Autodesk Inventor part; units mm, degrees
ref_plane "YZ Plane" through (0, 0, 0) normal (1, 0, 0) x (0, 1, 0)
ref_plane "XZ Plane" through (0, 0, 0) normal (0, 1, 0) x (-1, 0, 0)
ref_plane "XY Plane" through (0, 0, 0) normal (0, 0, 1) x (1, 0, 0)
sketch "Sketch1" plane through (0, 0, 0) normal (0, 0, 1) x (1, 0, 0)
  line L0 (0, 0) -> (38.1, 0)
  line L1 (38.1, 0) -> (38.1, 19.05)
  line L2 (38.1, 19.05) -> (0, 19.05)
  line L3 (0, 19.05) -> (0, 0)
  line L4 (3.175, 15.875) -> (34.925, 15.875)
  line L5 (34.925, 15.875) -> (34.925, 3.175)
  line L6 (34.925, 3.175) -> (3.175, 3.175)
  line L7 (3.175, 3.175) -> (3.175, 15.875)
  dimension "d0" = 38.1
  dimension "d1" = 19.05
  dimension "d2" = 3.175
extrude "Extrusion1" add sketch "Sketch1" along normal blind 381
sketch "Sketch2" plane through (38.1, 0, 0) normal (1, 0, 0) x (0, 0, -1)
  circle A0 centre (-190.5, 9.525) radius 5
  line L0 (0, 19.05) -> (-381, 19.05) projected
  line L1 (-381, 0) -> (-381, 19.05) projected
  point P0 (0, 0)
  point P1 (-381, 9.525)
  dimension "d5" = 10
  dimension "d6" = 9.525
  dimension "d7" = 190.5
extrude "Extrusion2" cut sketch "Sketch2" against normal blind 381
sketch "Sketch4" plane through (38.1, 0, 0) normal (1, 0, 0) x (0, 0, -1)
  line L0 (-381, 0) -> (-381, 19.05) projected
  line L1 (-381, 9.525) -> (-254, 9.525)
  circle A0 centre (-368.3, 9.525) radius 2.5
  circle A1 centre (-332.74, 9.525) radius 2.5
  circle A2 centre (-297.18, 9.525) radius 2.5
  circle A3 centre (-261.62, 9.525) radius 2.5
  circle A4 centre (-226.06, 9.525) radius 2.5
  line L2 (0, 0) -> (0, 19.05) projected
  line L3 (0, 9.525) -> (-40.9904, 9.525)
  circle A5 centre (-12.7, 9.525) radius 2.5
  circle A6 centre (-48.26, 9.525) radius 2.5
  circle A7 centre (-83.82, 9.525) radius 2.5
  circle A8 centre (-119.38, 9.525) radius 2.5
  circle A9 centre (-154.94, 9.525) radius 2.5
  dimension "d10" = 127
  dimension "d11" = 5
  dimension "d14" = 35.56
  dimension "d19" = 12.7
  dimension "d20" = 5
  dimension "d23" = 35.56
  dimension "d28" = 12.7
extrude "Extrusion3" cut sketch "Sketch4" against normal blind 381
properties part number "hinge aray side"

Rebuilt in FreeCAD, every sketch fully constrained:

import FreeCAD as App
import Part
import Sketcher
Q = App.Units.Quantity

doc = App.newDocument("Part")
params = doc.addObject("Spreadsheet::Sheet", "Params")
for row, (alias, value) in enumerate([
    ("sketch1_width", "1.5 in"),
    ("sketch1_height", "0.75 in"),
    ("sketch1_height2", "0.5 in"),
    ("pad1_length", "15 in"),
    ("pocket1_length", "15 in"),
    ("pocket2_length", "15 in"),
], start=1):
    params.set(f"A{row}", alias)
    params.set(f"B{row}", "=" + value)
    params.setAlias(f"B{row}", alias)

body = doc.addObject("PartDesign::Body", "Body")

sketch1 = body.newObject("Sketcher::SketchObject", "Sketch")
sketch1.AttachmentSupport = (doc.getObject("XY_Plane"), [""])
sketch1.MapMode = "FlatFace"
sketch1.addGeometry([
    Part.LineSegment(App.Vector(0, 19, 0), App.Vector(0, 0, 0)),
    Part.LineSegment(App.Vector(0, 0, 0), App.Vector(38, 0, 0)),
    Part.LineSegment(App.Vector(38, 0, 0), App.Vector(38, 19, 0)),
    Part.LineSegment(App.Vector(38, 19, 0), App.Vector(0, 19, 0)),
    Part.LineSegment(App.Vector(3, 3, 0), App.Vector(3, 16, 0)),
    Part.LineSegment(App.Vector(3, 16, 0), App.Vector(35, 16, 0)),
    Part.LineSegment(App.Vector(35, 16, 0), App.Vector(35, 3, 0)),
    Part.LineSegment(App.Vector(35, 3, 0), App.Vector(3, 3, 0)),
], False)
sketch1.addConstraint([
    Sketcher.Constraint("Coincident", 0, 2, 1, 1),
    Sketcher.Constraint("Coincident", 1, 2, 2, 1),
    Sketcher.Constraint("Coincident", 2, 2, 3, 1),
    Sketcher.Constraint("Coincident", 3, 2, 0, 1),
    Sketcher.Constraint("Coincident", 4, 2, 5, 1),
    Sketcher.Constraint("Coincident", 5, 2, 6, 1),
    Sketcher.Constraint("Coincident", 6, 2, 7, 1),
    Sketcher.Constraint("Coincident", 7, 2, 4, 1),
    Sketcher.Constraint("Vertical", 0),
    Sketcher.Constraint("Horizontal", 1),
    Sketcher.Constraint("Vertical", 2),
    Sketcher.Constraint("Horizontal", 3),
    Sketcher.Constraint("Vertical", 4),
    Sketcher.Constraint("Horizontal", 5),
    Sketcher.Constraint("Vertical", 6),
    Sketcher.Constraint("Horizontal", 7),
    Sketcher.Constraint("Coincident", 0, 2, -1, 1),
    Sketcher.Constraint("DistanceX", 1, 1, 1, 2, Q("1.5 in")),
    Sketcher.Constraint("DistanceY", 0, 2, 0, 1, Q("0.75 in")),
    Sketcher.Constraint("DistanceY", 4, 1, 4, 2, Q("0.5 in")),
    Sketcher.Constraint("DistanceX", -1, 1, 4, 2, Q("0.125 in")),
    Sketcher.Constraint("DistanceY", -1, 1, 6, 2, Q("0.125 in")),
    Sketcher.Constraint("DistanceX", 5, 2, 2, 2, Q("0.125 in")),
])
sketch1.setExpression("Constraints[17]", "Params.sketch1_width")
sketch1.setExpression("Constraints[18]", "Params.sketch1_height")
sketch1.setExpression("Constraints[19]", "Params.sketch1_height2")
pad1 = body.newObject("PartDesign::Pad", "Pad")
pad1.Profile = sketch1
pad1.setExpression("Length", "Params.pad1_length")

sketch2 = body.newObject("Sketcher::SketchObject", "Sketch001")
sketch2.AttachmentSupport = (doc.getObject("YZ_Plane"), [""])
sketch2.MapMode = "FlatFace"
sketch2.AttachmentOffset = App.Placement(App.Vector(0, 0, 1.5 * 25.4), App.Rotation())
sketch2.addGeometry(Part.Circle(App.Vector(10, 190, 0), App.Vector(0, 0, 1), 5), False)
sketch2.addConstraint([
    Sketcher.Constraint("Diameter", 0, Q("0.3937 in")),
    Sketcher.Constraint("DistanceY", -1, 1, 0, 3, Q("7.5 in")),
    Sketcher.Constraint("DistanceX", -1, 1, 0, 3, Q("0.375 in")),
])
pocket1 = body.newObject("PartDesign::Pocket", "Pocket")
pocket1.Profile = sketch2
pocket1.setExpression("Length", "Params.pocket1_length")

sketch3 = body.newObject("Sketcher::SketchObject", "Sketch002")
sketch3.AttachmentSupport = (doc.getObject("YZ_Plane"), [""])
sketch3.MapMode = "FlatFace"
sketch3.AttachmentOffset = App.Placement(App.Vector(0, 0, 1.5 * 25.4), App.Rotation())
sketch3.addGeometry([
    Part.Circle(App.Vector(9.5, 368.3, 0), App.Vector(0, 0, 1), 2.5),
    Part.Circle(App.Vector(9.5, 261.6, 0), App.Vector(0, 0, 1), 2.5),
    Part.Circle(App.Vector(9.5, 297.2, 0), App.Vector(0, 0, 1), 2.5),
    Part.Circle(App.Vector(9.5, 332.7, 0), App.Vector(0, 0, 1), 2.5),
    Part.Circle(App.Vector(9.5, 226.1, 0), App.Vector(0, 0, 1), 2.5),
    Part.Circle(App.Vector(9.5, 12.7, 0), App.Vector(0, 0, 1), 2.5),
    Part.Circle(App.Vector(9.5, 48.3, 0), App.Vector(0, 0, 1), 2.5),
    Part.Circle(App.Vector(9.5, 83.8, 0), App.Vector(0, 0, 1), 2.5),
    Part.Circle(App.Vector(9.5, 119.4, 0), App.Vector(0, 0, 1), 2.5),
    Part.Circle(App.Vector(9.5, 154.9, 0), App.Vector(0, 0, 1), 2.5),
], False)
sketch3.addConstraint([
    Sketcher.Constraint("Equal", 0, 1),
    Sketcher.Constraint("Equal", 1, 2),
    Sketcher.Constraint("Equal", 2, 3),
    Sketcher.Constraint("Equal", 3, 4),
    Sketcher.Constraint("Equal", 4, 5),
    Sketcher.Constraint("Equal", 5, 6),
    Sketcher.Constraint("Equal", 6, 7),
    Sketcher.Constraint("Equal", 7, 8),
    Sketcher.Constraint("Equal", 8, 9),
    Sketcher.Constraint("Vertical", 0, 3, 1, 3),
    Sketcher.Constraint("Vertical", 1, 3, 2, 3),
    Sketcher.Constraint("Vertical", 2, 3, 3, 3),
    Sketcher.Constraint("Vertical", 3, 3, 4, 3),
    Sketcher.Constraint("Vertical", 4, 3, 5, 3),
    Sketcher.Constraint("Vertical", 5, 3, 6, 3),
    Sketcher.Constraint("Vertical", 6, 3, 7, 3),
    Sketcher.Constraint("Vertical", 7, 3, 8, 3),
    Sketcher.Constraint("Vertical", 8, 3, 9, 3),
    Sketcher.Constraint("DistanceY", -1, 1, 5, 3, Q("0.5 in")),
    Sketcher.Constraint("DistanceY", 1, 3, 2, 3, Q("1.4 in")),
    Sketcher.Constraint("DistanceY", 3, 3, 0, 3, Q("1.4 in")),
    Sketcher.Constraint("DistanceY", 2, 3, 3, 3, Q("1.4 in")),
    Sketcher.Constraint("DistanceY", 4, 3, 1, 3, Q("1.4 in")),
    Sketcher.Constraint("DistanceY", 5, 3, 6, 3, Q("1.4 in")),
    Sketcher.Constraint("DistanceY", 6, 3, 7, 3, Q("1.4 in")),
    Sketcher.Constraint("DistanceY", 7, 3, 8, 3, Q("1.4 in")),
    Sketcher.Constraint("DistanceY", 8, 3, 9, 3, Q("1.4 in")),
    Sketcher.Constraint("Diameter", 0, 5.0),
    Sketcher.Constraint("DistanceY", 5, 3, 0, 3, Q("14 in")),
    Sketcher.Constraint("DistanceX", -1, 1, 0, 3, Q("0.375 in")),
])
pocket2 = body.newObject("PartDesign::Pocket", "Pocket001")
pocket2.Profile = sketch3
pocket2.setExpression("Length", "Params.pocket2_length")

doc.recompute()
